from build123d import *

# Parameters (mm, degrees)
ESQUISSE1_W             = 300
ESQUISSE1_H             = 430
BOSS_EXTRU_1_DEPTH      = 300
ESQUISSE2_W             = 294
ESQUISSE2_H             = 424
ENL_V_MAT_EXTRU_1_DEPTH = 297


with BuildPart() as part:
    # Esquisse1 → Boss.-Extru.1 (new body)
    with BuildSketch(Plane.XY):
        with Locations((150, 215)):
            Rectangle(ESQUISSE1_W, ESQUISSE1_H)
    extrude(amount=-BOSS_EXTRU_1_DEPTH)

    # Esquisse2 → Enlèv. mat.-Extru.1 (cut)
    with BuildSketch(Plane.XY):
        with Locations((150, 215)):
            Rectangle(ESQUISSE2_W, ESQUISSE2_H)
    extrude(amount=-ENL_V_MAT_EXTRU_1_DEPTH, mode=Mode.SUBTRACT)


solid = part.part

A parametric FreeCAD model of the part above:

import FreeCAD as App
import Part
import Sketcher

doc = App.newDocument("Part")
params = doc.addObject("Spreadsheet::Sheet", "Params")
for row, (alias, value) in enumerate([
    ("sketch1_width", "300 mm"),
    ("sketch1_height", "430 mm"),
    ("pad1_length", "300 mm"),
    ("sketch2_width", "294 mm"),
    ("sketch2_height", "424 mm"),
    ("pocket1_length", "297 mm"),
], start=1):
    params.set(f"A{row}", alias)
    params.set(f"B{row}", "=" + value)
    params.setAlias(f"B{row}", alias)

body = doc.addObject("PartDesign::Body", "Body")

sketch1 = doc.addObject("Sketcher::SketchObject", "Sketch")
body.addObject(sketch1)
sketch1.AttachmentSupport = (doc.XY_Plane, [""])
sketch1.MapMode = "FlatFace"
sketch1.addGeometry([
    Part.LineSegment(App.Vector(0, 430, 0), App.Vector(0, 0, 0)),
    Part.LineSegment(App.Vector(0, 0, 0), App.Vector(300, 0, 0)),
    Part.LineSegment(App.Vector(300, 0, 0), App.Vector(300, 430, 0)),
    Part.LineSegment(App.Vector(300, 430, 0), App.Vector(0, 430, 0)),
], False)
sketch1.addConstraint([
    Sketcher.Constraint("Coincident", 0, 2, 1, 1),
    Sketcher.Constraint("Coincident", 1, 2, 2, 1),
    Sketcher.Constraint("Coincident", 2, 2, 3, 1),
    Sketcher.Constraint("Coincident", 3, 2, 0, 1),
    Sketcher.Constraint("Vertical", 0),
    Sketcher.Constraint("Horizontal", 1),
    Sketcher.Constraint("Vertical", 2),
    Sketcher.Constraint("Horizontal", 3),
    Sketcher.Constraint("Coincident", 0, 2, -1, 1),
    Sketcher.Constraint("DistanceX", 1, 1, 1, 2, 300.0),
    Sketcher.Constraint("DistanceY", 0, 2, 0, 1, 430.0),
])
sketch1.setExpression("Constraints[9]", "Params.sketch1_width")
sketch1.setExpression("Constraints[10]", "Params.sketch1_height")
pad1 = doc.addObject("PartDesign::Pad", "Pad")
body.addObject(pad1)
pad1.Profile = sketch1
pad1.setExpression("Length", "Params.pad1_length")
pad1.Reversed = True

sketch2 = doc.addObject("Sketcher::SketchObject", "Sketch001")
body.addObject(sketch2)
sketch2.AttachmentSupport = (doc.XY_Plane, [""])
sketch2.MapMode = "FlatFace"
sketch2.addGeometry([
    Part.LineSegment(App.Vector(3, 427, 0), App.Vector(3, 3, 0)),
    Part.LineSegment(App.Vector(3, 3, 0), App.Vector(297, 3, 0)),
    Part.LineSegment(App.Vector(297, 3, 0), App.Vector(297, 427, 0)),
    Part.LineSegment(App.Vector(297, 427, 0), App.Vector(3, 427, 0)),
], False)
sketch2.addConstraint([
    Sketcher.Constraint("Coincident", 0, 2, 1, 1),
    Sketcher.Constraint("Coincident", 1, 2, 2, 1),
    Sketcher.Constraint("Coincident", 2, 2, 3, 1),
    Sketcher.Constraint("Coincident", 3, 2, 0, 1),
    Sketcher.Constraint("Vertical", 0),
    Sketcher.Constraint("Horizontal", 1),
    Sketcher.Constraint("Vertical", 2),
    Sketcher.Constraint("Horizontal", 3),
    Sketcher.Constraint("DistanceX", 1, 1, 1, 2, 294.0),
    Sketcher.Constraint("DistanceY", 0, 2, 0, 1, 424.0),
    Sketcher.Constraint("DistanceX", -1, 1, 0, 2, 3.0),
    Sketcher.Constraint("DistanceY", -1, 1, 0, 2, 3.0),
])
sketch2.setExpression("Constraints[8]", "Params.sketch2_width")
sketch2.setExpression("Constraints[9]", "Params.sketch2_height")
pocket1 = doc.addObject("PartDesign::Pocket", "Pocket")
body.addObject(pocket1)
pocket1.Profile = sketch2
pocket1.setExpression("Length", "Params.pocket1_length")

doc.recompute()
